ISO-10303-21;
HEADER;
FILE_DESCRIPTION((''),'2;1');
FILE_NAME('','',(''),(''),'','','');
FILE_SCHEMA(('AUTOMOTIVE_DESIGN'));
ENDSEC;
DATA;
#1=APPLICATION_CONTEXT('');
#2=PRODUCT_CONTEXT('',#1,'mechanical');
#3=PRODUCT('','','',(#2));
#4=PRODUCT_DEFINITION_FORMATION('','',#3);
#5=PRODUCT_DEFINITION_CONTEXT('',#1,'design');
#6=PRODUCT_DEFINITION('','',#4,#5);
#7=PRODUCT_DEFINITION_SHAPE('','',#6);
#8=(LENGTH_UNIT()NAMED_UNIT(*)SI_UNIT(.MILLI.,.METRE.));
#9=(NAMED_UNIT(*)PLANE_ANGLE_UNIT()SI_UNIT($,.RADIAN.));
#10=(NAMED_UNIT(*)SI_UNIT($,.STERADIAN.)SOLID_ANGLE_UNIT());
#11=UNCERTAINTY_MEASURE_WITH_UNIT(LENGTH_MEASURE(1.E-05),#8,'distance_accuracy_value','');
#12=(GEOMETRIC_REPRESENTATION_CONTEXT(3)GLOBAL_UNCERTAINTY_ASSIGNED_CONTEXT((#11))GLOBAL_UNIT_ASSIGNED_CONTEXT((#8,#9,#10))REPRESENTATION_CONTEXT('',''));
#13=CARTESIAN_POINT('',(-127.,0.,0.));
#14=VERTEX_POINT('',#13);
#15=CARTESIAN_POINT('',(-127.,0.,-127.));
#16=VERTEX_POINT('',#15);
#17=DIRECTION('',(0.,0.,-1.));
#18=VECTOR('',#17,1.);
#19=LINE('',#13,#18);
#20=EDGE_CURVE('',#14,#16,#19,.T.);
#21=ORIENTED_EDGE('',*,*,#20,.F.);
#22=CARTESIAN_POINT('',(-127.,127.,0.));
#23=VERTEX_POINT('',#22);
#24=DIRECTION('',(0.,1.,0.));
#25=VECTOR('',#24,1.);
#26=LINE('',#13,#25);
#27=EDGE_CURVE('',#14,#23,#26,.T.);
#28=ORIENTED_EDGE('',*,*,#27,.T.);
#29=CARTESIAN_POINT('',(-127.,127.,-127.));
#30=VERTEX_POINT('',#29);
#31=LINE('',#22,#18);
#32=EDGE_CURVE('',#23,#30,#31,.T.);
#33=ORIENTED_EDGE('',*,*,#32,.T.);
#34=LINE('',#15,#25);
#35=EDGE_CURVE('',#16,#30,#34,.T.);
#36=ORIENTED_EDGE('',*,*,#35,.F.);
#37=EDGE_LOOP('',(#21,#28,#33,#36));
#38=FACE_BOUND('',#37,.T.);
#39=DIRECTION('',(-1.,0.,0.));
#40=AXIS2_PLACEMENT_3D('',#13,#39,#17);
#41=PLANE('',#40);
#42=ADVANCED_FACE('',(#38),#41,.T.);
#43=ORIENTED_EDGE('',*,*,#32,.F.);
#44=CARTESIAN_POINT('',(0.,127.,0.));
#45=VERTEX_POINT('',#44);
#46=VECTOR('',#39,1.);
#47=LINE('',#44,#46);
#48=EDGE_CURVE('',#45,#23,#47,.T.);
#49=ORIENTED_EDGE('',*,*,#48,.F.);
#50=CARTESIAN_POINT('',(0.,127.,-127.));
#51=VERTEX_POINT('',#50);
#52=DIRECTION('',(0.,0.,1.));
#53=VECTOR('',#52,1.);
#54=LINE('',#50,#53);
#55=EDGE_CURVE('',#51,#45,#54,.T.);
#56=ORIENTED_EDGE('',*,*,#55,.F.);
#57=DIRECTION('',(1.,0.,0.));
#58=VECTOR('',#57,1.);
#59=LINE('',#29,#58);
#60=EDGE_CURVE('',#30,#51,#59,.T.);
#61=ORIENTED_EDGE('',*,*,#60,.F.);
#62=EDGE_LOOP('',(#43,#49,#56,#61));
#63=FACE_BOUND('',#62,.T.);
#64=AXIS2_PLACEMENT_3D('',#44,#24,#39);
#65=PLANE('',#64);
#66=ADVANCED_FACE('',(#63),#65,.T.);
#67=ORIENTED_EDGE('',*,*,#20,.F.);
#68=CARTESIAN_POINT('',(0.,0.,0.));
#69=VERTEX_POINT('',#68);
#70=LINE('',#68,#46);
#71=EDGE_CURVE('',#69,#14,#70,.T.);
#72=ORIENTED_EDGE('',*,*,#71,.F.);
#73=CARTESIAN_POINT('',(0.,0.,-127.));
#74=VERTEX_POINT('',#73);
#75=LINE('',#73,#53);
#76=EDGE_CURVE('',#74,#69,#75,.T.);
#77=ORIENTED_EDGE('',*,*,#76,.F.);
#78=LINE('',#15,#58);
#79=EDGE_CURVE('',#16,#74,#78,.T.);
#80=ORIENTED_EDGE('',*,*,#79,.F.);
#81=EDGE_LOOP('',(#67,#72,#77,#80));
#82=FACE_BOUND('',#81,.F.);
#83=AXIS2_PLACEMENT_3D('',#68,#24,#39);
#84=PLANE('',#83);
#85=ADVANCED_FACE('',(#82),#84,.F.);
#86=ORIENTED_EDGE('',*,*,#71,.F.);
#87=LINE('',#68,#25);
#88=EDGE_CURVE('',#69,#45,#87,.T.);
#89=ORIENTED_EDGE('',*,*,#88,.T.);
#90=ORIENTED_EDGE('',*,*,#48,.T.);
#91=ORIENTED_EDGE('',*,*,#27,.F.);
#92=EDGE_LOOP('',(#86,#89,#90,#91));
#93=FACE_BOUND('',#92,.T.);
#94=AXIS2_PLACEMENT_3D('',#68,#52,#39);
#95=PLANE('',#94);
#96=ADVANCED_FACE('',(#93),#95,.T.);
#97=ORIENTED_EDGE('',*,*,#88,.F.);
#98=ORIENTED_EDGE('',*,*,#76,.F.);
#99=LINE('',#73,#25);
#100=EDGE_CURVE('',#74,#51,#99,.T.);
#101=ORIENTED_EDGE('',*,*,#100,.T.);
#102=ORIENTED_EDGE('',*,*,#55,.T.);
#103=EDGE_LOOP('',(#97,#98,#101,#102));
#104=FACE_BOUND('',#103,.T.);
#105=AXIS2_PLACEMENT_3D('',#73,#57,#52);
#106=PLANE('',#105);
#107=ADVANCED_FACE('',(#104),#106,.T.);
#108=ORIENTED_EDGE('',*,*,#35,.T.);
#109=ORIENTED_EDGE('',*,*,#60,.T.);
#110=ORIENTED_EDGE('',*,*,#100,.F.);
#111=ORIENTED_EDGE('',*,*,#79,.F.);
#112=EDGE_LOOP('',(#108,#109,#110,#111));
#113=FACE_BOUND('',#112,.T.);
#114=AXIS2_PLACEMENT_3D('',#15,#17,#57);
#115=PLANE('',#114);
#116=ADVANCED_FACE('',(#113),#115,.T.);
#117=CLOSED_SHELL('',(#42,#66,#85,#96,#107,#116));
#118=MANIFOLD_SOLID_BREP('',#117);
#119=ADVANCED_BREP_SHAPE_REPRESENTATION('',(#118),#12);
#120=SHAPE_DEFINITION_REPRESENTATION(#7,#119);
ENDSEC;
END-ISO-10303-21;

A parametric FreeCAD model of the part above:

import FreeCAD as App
import Part
import Sketcher
Q = App.Units.Quantity


def add_polygon(sketch, points):
    """Adds a closed chain of lines whose ends are joined by coincident constraints."""
    first, n = sketch.GeometryCount, len(points)
    for a, b in zip(points, points[1:] + points[:1]):
        sketch.addGeometry(Part.LineSegment(App.Vector(*a, 0), App.Vector(*b, 0)), False)
    for i in range(n):
        sketch.addConstraint(Sketcher.Constraint("Coincident", first + i, 2, first + (i + 1) % n, 1))

doc = App.newDocument("Part")
body = doc.addObject("PartDesign::Body", "Body")

# Sketch on XZ plane
sketch1 = body.newObject("Sketcher::SketchObject", "Sketch")
sketch1.AttachmentSupport = (doc.getObject("XZ_Plane"), [""])
sketch1.MapMode = "FlatFace"
add_polygon(sketch1, [(-127, 0), (0, 0), (0, -127), (-127, -127)])  # lines 0-3
sketch1.addConstraint(Sketcher.Constraint("Horizontal", 0))
sketch1.addConstraint(Sketcher.Constraint("Vertical", 1))
sketch1.addConstraint(Sketcher.Constraint("Horizontal", 2))
sketch1.addConstraint(Sketcher.Constraint("Vertical", 3))
sketch1.addConstraint(Sketcher.Constraint("Coincident", 0, 2, -1, 1))
sketch1.addConstraint(Sketcher.Constraint("Equal", 2, 1))
sketch1.addConstraint(Sketcher.Constraint("DistanceX", 0, 1, 0, 2, Q("5 in")))
pad1 = body.newObject("PartDesign::Pad", "Pad")
pad1.Profile = sketch1
pad1.Length = Q("5 in")
pad1.Reversed = True

doc.recompute()
